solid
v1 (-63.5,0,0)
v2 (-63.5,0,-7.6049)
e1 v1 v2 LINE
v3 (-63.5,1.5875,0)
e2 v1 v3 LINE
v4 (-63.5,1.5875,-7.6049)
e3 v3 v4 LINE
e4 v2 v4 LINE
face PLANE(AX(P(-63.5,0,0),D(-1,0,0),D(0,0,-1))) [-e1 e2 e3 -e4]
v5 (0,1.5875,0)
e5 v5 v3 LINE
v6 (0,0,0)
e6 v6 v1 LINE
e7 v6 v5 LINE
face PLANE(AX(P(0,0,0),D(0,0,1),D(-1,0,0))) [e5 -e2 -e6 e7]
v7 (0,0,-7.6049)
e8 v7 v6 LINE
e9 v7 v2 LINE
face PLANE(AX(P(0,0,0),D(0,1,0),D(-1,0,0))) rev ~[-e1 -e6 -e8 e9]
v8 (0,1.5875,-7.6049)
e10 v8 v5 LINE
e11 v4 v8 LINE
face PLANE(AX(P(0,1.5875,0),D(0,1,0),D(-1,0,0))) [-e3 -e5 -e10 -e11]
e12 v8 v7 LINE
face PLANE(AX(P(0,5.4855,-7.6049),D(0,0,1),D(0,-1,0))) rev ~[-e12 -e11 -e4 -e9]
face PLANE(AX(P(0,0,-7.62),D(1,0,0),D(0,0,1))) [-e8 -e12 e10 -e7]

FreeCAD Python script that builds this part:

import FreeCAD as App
import Part
import Sketcher
from FreeCAD import Vector
Q = App.Units.Quantity


def add_polygon(sketch, points):
    """Adds a closed chain of lines whose ends are joined by coincident constraints."""
    first, n = sketch.GeometryCount, len(points)
    for a, b in zip(points, points[1:] + points[:1]):
        sketch.addGeometry(Part.LineSegment(App.Vector(*a, 0), App.Vector(*b, 0)), False)
    for i in range(n):
        sketch.addConstraint(Sketcher.Constraint("Coincident", first + i, 2, first + (i + 1) % n, 1))

doc = App.newDocument("Part")
body = doc.addObject("PartDesign::Body", "Body")

# Sketch on XZ plane
sketch1 = body.newObject("Sketcher::SketchObject", "Sketch")
sketch1.AttachmentSupport = (doc.getObject("XZ_Plane"), [""])
sketch1.MapMode = "FlatFace"
add_polygon(sketch1, [(-64, 0), (0, 0), (0, -8), (-64, -8)])  # lines 0-3
sketch1.addConstraint(Sketcher.Constraint("Horizontal", 0))
sketch1.addConstraint(Sketcher.Constraint("Vertical", 1))
sketch1.addConstraint(Sketcher.Constraint("Horizontal", 2))
sketch1.addConstraint(Sketcher.Constraint("Vertical", 3))
sketch1.addConstraint(Sketcher.Constraint("Coincident", 0, 2, -1, 1))
sketch1.addConstraint(Sketcher.Constraint("DistanceX", 0, 1, 0, 2, Q("2.5 in")))
sketch1.addConstraint(Sketcher.Constraint("DistanceY", 1, 2, 1, 1, Q("0.3 in")))
pad1 = body.newObject("PartDesign::Pad", "Pad")
pad1.Profile = sketch1
pad1.Length = Q("0.0625 in")
pad1.Reversed = True

# Sketch on YZ plane
sketch2 = body.newObject("Sketcher::SketchObject", "Sketch001")
sketch2.AttachmentSupport = (doc.getObject("YZ_Plane"), [""])
sketch2.MapMode = "FlatFace"
add_polygon(sketch2, [(0, 3.2), (0, 0), (6.1, 0), (6.1, 3.2)])  # lines 0-3
add_polygon(sketch2, [(5.5, -7.6), (0, -7.6), (0, -10.4), (5.5, -10.4)])  # lines 4-7
sketch2.addConstraint(Sketcher.Constraint("Vertical", 0))
sketch2.addConstraint(Sketcher.Constraint("Horizontal", 1))
sketch2.addConstraint(Sketcher.Constraint("Vertical", 2))
sketch2.addConstraint(Sketcher.Constraint("Horizontal", 3))
sketch2.addConstraint(Sketcher.Constraint("Horizontal", 4))
sketch2.addConstraint(Sketcher.Constraint("Vertical", 5))
sketch2.addConstraint(Sketcher.Constraint("Horizontal", 6))
sketch2.addConstraint(Sketcher.Constraint("Vertical", 7))
sketch2.addConstraint(Sketcher.Constraint("Coincident", 0, 2, -1, 1))
sketch2.addConstraint(Sketcher.Constraint("PointOnObject", 4, 2, -2))
sketch2.addConstraint(Sketcher.Constraint("DistanceX", 1, 1, 1, 2, 6.1227))
sketch2.addConstraint(Sketcher.Constraint("DistanceX", 4, 2, 4, 1, 5.4855))
sketch2.addConstraint(Sketcher.Constraint("DistanceY", 0, 2, 0, 1, 3.2276))
sketch2.addConstraint(Sketcher.Constraint("DistanceY", 5, 2, 5, 1, 2.7705))
sketch2.addConstraint(Sketcher.Constraint("DistanceY", 4, 2, -1, 1, Q("0.2994 in")))
pocket1 = body.newObject("PartDesign::Pocket", "Pocket")
pocket1.Profile = sketch2
pocket1.Type = "ThroughAll"

doc.recompute()
